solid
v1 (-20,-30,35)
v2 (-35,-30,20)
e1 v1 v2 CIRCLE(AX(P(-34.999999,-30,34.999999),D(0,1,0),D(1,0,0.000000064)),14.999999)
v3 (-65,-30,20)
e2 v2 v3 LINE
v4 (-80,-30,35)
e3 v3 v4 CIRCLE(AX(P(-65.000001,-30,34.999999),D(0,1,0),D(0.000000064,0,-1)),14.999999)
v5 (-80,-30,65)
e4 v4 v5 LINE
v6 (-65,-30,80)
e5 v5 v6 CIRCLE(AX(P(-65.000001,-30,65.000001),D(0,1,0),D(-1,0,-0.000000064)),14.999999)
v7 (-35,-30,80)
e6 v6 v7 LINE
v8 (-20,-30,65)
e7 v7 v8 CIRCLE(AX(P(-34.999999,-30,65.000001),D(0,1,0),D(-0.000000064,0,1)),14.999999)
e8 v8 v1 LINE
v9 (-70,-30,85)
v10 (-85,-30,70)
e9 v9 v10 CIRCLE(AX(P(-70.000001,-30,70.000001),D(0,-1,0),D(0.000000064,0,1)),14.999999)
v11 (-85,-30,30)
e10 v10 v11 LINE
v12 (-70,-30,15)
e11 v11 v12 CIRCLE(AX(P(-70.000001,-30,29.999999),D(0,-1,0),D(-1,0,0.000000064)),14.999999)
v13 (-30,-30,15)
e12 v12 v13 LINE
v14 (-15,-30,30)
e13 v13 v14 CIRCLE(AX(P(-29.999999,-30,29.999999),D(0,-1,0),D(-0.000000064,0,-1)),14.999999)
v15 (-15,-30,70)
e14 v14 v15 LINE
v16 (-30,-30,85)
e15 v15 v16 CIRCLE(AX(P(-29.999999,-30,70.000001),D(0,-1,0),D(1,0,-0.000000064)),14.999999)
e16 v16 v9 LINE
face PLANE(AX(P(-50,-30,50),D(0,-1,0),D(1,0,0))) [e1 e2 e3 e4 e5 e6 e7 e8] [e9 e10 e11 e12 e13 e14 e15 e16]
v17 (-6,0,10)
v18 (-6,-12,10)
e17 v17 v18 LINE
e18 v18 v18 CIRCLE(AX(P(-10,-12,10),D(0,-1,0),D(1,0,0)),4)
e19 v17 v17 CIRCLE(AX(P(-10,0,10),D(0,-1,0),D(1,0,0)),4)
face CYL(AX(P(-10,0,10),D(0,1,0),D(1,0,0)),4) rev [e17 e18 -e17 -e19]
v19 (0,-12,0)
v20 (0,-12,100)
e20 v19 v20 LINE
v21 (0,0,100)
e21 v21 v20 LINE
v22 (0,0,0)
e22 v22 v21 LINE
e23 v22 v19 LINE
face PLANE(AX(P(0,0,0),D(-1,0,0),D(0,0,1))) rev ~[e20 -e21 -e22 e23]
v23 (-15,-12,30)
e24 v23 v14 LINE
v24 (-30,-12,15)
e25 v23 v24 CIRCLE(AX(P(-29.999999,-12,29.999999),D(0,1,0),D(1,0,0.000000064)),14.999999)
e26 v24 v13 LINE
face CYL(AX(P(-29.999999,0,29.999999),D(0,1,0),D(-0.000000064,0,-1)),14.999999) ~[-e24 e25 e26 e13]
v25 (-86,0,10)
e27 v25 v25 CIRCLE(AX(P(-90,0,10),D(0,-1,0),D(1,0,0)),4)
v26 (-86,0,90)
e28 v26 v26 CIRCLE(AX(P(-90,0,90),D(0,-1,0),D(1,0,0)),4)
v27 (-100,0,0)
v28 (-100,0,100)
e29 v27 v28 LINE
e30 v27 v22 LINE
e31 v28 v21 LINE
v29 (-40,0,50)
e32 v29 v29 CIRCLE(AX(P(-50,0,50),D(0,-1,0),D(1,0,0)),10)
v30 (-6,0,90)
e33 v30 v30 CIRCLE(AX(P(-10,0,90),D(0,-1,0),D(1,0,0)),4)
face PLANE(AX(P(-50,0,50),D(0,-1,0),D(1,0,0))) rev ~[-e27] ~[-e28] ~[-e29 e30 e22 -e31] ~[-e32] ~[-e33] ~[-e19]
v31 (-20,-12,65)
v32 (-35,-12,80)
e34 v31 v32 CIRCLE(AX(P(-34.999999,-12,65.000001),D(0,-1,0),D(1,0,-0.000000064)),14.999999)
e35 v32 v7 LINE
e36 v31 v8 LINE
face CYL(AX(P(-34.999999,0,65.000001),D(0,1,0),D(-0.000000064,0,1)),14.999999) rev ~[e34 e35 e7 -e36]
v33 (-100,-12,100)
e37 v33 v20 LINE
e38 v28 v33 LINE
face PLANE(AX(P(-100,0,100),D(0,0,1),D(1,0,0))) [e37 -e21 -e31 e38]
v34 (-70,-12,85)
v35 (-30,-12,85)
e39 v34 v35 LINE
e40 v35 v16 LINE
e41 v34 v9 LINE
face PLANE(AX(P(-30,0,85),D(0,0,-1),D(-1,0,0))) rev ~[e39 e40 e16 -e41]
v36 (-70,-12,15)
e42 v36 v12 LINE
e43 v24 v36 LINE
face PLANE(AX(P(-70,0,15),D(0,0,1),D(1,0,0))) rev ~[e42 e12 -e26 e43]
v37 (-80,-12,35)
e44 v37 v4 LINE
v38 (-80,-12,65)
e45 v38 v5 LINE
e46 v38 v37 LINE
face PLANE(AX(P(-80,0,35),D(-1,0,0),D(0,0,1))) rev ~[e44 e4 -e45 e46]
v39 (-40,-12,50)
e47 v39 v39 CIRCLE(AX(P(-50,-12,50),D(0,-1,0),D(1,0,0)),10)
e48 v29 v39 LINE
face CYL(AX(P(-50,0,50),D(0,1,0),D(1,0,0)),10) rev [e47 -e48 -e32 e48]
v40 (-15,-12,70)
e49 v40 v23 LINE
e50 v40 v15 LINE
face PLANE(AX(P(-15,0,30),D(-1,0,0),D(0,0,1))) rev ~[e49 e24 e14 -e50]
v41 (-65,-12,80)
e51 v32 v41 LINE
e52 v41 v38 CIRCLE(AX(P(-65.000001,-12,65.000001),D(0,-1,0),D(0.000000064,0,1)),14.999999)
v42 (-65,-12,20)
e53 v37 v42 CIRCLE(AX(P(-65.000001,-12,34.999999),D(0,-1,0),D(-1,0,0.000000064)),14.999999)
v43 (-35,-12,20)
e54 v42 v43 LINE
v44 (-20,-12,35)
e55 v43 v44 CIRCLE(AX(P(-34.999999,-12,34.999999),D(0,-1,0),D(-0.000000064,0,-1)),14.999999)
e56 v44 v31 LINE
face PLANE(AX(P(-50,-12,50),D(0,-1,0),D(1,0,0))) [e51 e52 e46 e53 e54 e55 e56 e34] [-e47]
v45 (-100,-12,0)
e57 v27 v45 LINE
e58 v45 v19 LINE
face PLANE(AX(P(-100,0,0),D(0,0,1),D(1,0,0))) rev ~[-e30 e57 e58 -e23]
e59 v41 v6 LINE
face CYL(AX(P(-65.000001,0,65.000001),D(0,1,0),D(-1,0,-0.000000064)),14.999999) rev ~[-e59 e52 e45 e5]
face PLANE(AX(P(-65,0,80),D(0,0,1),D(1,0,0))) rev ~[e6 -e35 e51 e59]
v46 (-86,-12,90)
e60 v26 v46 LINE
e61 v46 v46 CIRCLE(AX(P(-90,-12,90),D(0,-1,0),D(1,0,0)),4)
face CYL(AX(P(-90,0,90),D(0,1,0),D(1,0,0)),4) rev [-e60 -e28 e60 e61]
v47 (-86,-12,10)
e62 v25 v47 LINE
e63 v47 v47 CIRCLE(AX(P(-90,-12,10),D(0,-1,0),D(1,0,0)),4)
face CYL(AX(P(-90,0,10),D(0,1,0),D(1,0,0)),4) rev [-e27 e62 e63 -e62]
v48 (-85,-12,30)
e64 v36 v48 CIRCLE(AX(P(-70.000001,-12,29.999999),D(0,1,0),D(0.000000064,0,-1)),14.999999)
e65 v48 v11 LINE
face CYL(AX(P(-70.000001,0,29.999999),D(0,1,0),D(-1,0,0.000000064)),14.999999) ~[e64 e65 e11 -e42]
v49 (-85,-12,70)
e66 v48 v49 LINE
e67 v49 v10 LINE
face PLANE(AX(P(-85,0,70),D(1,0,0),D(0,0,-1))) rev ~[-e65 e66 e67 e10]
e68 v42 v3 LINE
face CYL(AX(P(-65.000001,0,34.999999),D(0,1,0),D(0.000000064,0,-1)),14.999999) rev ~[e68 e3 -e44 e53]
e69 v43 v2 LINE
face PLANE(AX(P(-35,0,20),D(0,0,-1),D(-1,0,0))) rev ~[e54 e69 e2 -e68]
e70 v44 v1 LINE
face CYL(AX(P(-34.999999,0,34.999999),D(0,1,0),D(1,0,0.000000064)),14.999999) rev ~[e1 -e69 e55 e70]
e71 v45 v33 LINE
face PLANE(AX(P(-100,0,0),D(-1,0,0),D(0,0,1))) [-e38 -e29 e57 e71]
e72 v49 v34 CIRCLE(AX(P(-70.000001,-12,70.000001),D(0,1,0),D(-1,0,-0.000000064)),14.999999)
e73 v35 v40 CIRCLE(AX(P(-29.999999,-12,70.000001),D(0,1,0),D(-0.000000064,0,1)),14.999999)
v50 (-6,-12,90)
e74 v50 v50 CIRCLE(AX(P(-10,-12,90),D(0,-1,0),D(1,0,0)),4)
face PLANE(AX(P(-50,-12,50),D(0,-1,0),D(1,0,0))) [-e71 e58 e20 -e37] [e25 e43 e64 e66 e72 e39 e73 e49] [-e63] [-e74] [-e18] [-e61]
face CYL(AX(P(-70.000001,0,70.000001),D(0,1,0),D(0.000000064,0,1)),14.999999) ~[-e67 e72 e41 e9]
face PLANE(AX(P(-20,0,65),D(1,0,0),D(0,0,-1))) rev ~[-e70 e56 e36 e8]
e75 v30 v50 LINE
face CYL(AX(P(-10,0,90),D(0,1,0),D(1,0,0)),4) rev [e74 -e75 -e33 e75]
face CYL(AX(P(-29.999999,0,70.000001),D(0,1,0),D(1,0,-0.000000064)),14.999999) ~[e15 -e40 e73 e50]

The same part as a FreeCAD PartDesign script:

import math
import FreeCAD as App
import Part
import Sketcher

V = App.Vector
Q = App.Units.Quantity

doc = App.newDocument("Part")
body = doc.addObject("PartDesign::Body", "Body")

# Sketch on XZ plane
sketch1 = doc.addObject("Sketcher::SketchObject", "Sketch")
body.addObject(sketch1)
sketch1.AttachmentSupport = (doc.XZ_Plane, [""])
sketch1.MapMode = "FlatFace"
sketch1.addGeometry([
    Part.LineSegment(V(-30, 85, 0), V(-70, 85, 0)),  # 0
    Part.ArcOfCircle(Part.Circle(V(-70, 70, 0), V(0, 0, 1), 15), math.radians(90), math.radians(180)),  # 1
    Part.LineSegment(V(-85, 70, 0), V(-85, 30, 0)),  # 2
    Part.ArcOfCircle(Part.Circle(V(-70, 30, 0), V(0, 0, 1), 15), math.radians(180), math.radians(270)),  # 3
    Part.LineSegment(V(-70, 15, 0), V(-30, 15, 0)),  # 4
    Part.ArcOfCircle(Part.Circle(V(-30, 30, 0), V(0, 0, 1), 15), math.radians(-90), math.radians(0)),  # 5
    Part.LineSegment(V(-15, 30, 0), V(-15, 70, 0)),  # 6
    Part.ArcOfCircle(Part.Circle(V(-30, 70, 0), V(0, 0, 1), 15), math.radians(0), math.radians(90)),  # 7
    Part.LineSegment(V(-80, 35, 0), V(-80, 65, 0)),  # 8
    Part.ArcOfCircle(Part.Circle(V(-65, 65, 0), V(0, 0, 1), 15), math.radians(90), math.radians(180)),  # 9
    Part.LineSegment(V(-65, 80, 0), V(-35, 80, 0)),  # 10
    Part.ArcOfCircle(Part.Circle(V(-35, 65, 0), V(0, 0, 1), 15), math.radians(0), math.radians(90)),  # 11
    Part.LineSegment(V(-20, 65, 0), V(-20, 35, 0)),  # 12
    Part.ArcOfCircle(Part.Circle(V(-35, 35, 0), V(0, 0, 1), 15), math.radians(-90), math.radians(0)),  # 13
    Part.LineSegment(V(-35, 20, 0), V(-65, 20, 0)),  # 14
    Part.ArcOfCircle(Part.Circle(V(-65, 35, 0), V(0, 0, 1), 15), math.radians(180), math.radians(270)),  # 15
], False)
sketch1.addConstraint([
    Sketcher.Constraint("Tangent", 0, 2, 1, 1),
    Sketcher.Constraint("Tangent", 1, 2, 2, 1),
    Sketcher.Constraint("Tangent", 2, 2, 3, 1),
    Sketcher.Constraint("Tangent", 3, 2, 4, 1),
    Sketcher.Constraint("Tangent", 4, 2, 5, 1),
    Sketcher.Constraint("Tangent", 5, 2, 6, 1),
    Sketcher.Constraint("Tangent", 6, 2, 7, 1),
    Sketcher.Constraint("Tangent", 7, 2, 0, 1),
    Sketcher.Constraint("Tangent", 8, 2, 9, 2),
    Sketcher.Constraint("Tangent", 9, 1, 10, 1),
    Sketcher.Constraint("Tangent", 10, 2, 11, 2),
    Sketcher.Constraint("Tangent", 11, 1, 12, 1),
    Sketcher.Constraint("Tangent", 12, 2, 13, 2),
    Sketcher.Constraint("Tangent", 13, 1, 14, 1),
    Sketcher.Constraint("Tangent", 14, 2, 15, 2),
    Sketcher.Constraint("Tangent", 15, 1, 8, 1),
    Sketcher.Constraint("Horizontal", 0),
    Sketcher.Constraint("Vertical", 2),
    Sketcher.Constraint("Horizontal", 4),
    Sketcher.Constraint("Vertical", 6),
    Sketcher.Constraint("Vertical", 8),
    Sketcher.Constraint("Horizontal", 10),
    Sketcher.Constraint("Vertical", 12),
    Sketcher.Constraint("Horizontal", 14),
    Sketcher.Constraint("Equal", 1, 3),
    Sketcher.Constraint("Equal", 3, 5),
    Sketcher.Constraint("Equal", 5, 7),
    Sketcher.Constraint("Equal", 7, 9),
    Sketcher.Constraint("Equal", 9, 11),
    Sketcher.Constraint("Equal", 11, 13),
    Sketcher.Constraint("Equal", 13, 15),
    Sketcher.Constraint("Equal", 4, 2),
    Sketcher.Constraint("Equal", 14, 8),
    Sketcher.Constraint("Radius", 1, Q("14.999999 mm")),
    Sketcher.Constraint("DistanceX", 0, 2, 0, 1, Q("40 mm")),
    Sketcher.Constraint("DistanceX", 10, 1, 10, 2, Q("30 mm")),
    Sketcher.Constraint("DistanceX", 1, 3, -1, 1, Q("70.000001 mm")),
    Sketcher.Constraint("DistanceY", -1, 1, 1, 3, Q("70.000001 mm")),
    Sketcher.Constraint("DistanceX", 9, 3, -1, 1, Q("65.000001 mm")),
    Sketcher.Constraint("DistanceY", -1, 1, 9, 3, Q("65.000001 mm")),
])
pad1 = doc.addObject("PartDesign::Pad", "Pad")
body.addObject(pad1)
pad1.Profile = sketch1
pad1.Length = 30

# Sketch on XZ plane
sketch2 = doc.addObject("Sketcher::SketchObject", "Sketch001")
body.addObject(sketch2)
sketch2.AttachmentSupport = (doc.XZ_Plane, [""])
sketch2.MapMode = "FlatFace"
sketch2.addGeometry([
    Part.LineSegment(V(-100, 100, 0), V(-100, 0, 0)),  # 0
    Part.LineSegment(V(-100, 0, 0), V(0, 0, 0)),  # 1
    Part.LineSegment(V(0, 0, 0), V(0, 100, 0)),  # 2
    Part.LineSegment(V(0, 100, 0), V(-100, 100, 0)),  # 3
    Part.Circle(V(-90, 10, 0), V(0, 0, 1), 4),  # 4
    Part.Circle(V(-10, 10, 0), V(0, 0, 1), 4),  # 5
    Part.LineSegment(V(-85, 30, 0), V(-85, 70, 0)),  # 6
    Part.ArcOfCircle(Part.Circle(V(-70, 70, 0), V(0, 0, 1), 15), math.radians(90), math.radians(180)),  # 7
    Part.LineSegment(V(-70, 85, 0), V(-30, 85, 0)),  # 8
    Part.ArcOfCircle(Part.Circle(V(-30, 70, 0), V(0, 0, 1), 15), math.radians(0), math.radians(90)),  # 9
    Part.LineSegment(V(-15, 70, 0), V(-15, 30, 0)),  # 10
    Part.ArcOfCircle(Part.Circle(V(-30, 30, 0), V(0, 0, 1), 15), math.radians(-90), math.radians(0)),  # 11
    Part.LineSegment(V(-30, 15, 0), V(-70, 15, 0)),  # 12
    Part.ArcOfCircle(Part.Circle(V(-70, 30, 0), V(0, 0, 1), 15), math.radians(180), math.radians(270)),  # 13
    Part.Circle(V(-90, 90, 0), V(0, 0, 1), 4),  # 14
    Part.Circle(V(-10, 90, 0), V(0, 0, 1), 4),  # 15
    Part.LineSegment(V(-35, 80, 0), V(-65, 80, 0)),  # 16
    Part.ArcOfCircle(Part.Circle(V(-65, 65, 0), V(0, 0, 1), 15), math.radians(90), math.radians(180)),  # 17
    Part.LineSegment(V(-80, 65, 0), V(-80, 35, 0)),  # 18
    Part.ArcOfCircle(Part.Circle(V(-65, 35, 0), V(0, 0, 1), 15), math.radians(180), math.radians(270)),  # 19
    Part.LineSegment(V(-65, 20, 0), V(-35, 20, 0)),  # 20
    Part.ArcOfCircle(Part.Circle(V(-35, 35, 0), V(0, 0, 1), 15), math.radians(-90), math.radians(0)),  # 21
    Part.LineSegment(V(-20, 35, 0), V(-20, 65, 0)),  # 22
    Part.ArcOfCircle(Part.Circle(V(-35, 65, 0), V(0, 0, 1), 15), math.radians(0), math.radians(90)),  # 23
    Part.Circle(V(-50, 50, 0), V(0, 0, 1), 10),  # 24
], False)
sketch2.addConstraint([
    Sketcher.Constraint("Coincident", 0, 2, 1, 1),
    Sketcher.Constraint("Coincident", 1, 2, 2, 1),
    Sketcher.Constraint("Coincident", 2, 2, 3, 1),
    Sketcher.Constraint("Coincident", 3, 2, 0, 1),
    Sketcher.Constraint("Tangent", 6, 2, 7, 2),
    Sketcher.Constraint("Tangent", 7, 1, 8, 1),
    Sketcher.Constraint("Tangent", 8, 2, 9, 2),
    Sketcher.Constraint("Tangent", 9, 1, 10, 1),
    Sketcher.Constraint("Tangent", 10, 2, 11, 2),
    Sketcher.Constraint("Tangent", 11, 1, 12, 1),
    Sketcher.Constraint("Tangent", 12, 2, 13, 2),
    Sketcher.Constraint("Tangent", 13, 1, 6, 1),
    Sketcher.Constraint("Tangent", 16, 2, 17, 1),
    Sketcher.Constraint("Tangent", 17, 2, 18, 1),
    Sketcher.Constraint("Tangent", 18, 2, 19, 1),
    Sketcher.Constraint("Tangent", 19, 2, 20, 1),
    Sketcher.Constraint("Tangent", 20, 2, 21, 1),
    Sketcher.Constraint("Tangent", 21, 2, 22, 1),
    Sketcher.Constraint("Tangent", 22, 2, 23, 1),
    Sketcher.Constraint("Tangent", 23, 2, 16, 1),
    Sketcher.Constraint("Vertical", 0),
    Sketcher.Constraint("Horizontal", 1),
    Sketcher.Constraint("Vertical", 2),
    Sketcher.Constraint("Horizontal", 3),
    Sketcher.Constraint("Vertical", 6),
    Sketcher.Constraint("Horizontal", 8),
    Sketcher.Constraint("Vertical", 10),
    Sketcher.Constraint("Horizontal", 12),
    Sketcher.Constraint("Horizontal", 16),
    Sketcher.Constraint("Vertical", 18),
    Sketcher.Constraint("Horizontal", 20),
    Sketcher.Constraint("Vertical", 22),
    Sketcher.Constraint("Coincident", 1, 2, -1, 1),
    Sketcher.Constraint("Equal", 4, 5),
    Sketcher.Constraint("Equal", 7, 9),
    Sketcher.Constraint("Equal", 9, 11),
    Sketcher.Constraint("Equal", 11, 13),
    Sketcher.Constraint("Equal", 5, 14),
    Sketcher.Constraint("Equal", 14, 15),
    Sketcher.Constraint("Equal", 13, 17),
    Sketcher.Constraint("Equal", 17, 19),
    Sketcher.Constraint("Equal", 19, 21),
    Sketcher.Constraint("Equal", 21, 23),
    Sketcher.Constraint("Horizontal", 4, 3, 5, 3),
    Sketcher.Constraint("Horizontal", 14, 3, 15, 3),
    Sketcher.Constraint("Vertical", 4, 3, 14, 3),
    Sketcher.Constraint("Vertical", 5, 3, 15, 3),
    Sketcher.Constraint("Equal", 3, 0),
    Sketcher.Constraint("Equal", 12, 6),
    Sketcher.Constraint("Equal", 20, 18),
    Sketcher.Constraint("Diameter", 4, Q("8 mm")),
    Sketcher.Constraint("Diameter", 24, Q("20 mm")),
    Sketcher.Constraint("Radius", 7, Q("14.999999 mm")),
    Sketcher.Constraint("DistanceX", 1, 1, 1, 2, Q("100 mm")),
    Sketcher.Constraint("DistanceX", 8, 1, 8, 2, Q("40 mm")),
    Sketcher.Constraint("DistanceX", 16, 2, 16, 1, Q("30 mm")),
    Sketcher.Constraint("DistanceX", 4, 3, -1, 1, Q("90 mm")),
    Sketcher.Constraint("DistanceY", -1, 1, 4, 3, Q("10 mm")),
    Sketcher.Constraint("DistanceX", 5, 3, -1, 1, Q("10 mm")),
    Sketcher.Constraint("DistanceX", 7, 3, -1, 1, Q("70.000001 mm")),
    Sketcher.Constraint("DistanceY", -1, 1, 7, 3, Q("70.000001 mm")),
    Sketcher.Constraint("DistanceY", -1, 1, 14, 3, Q("90 mm")),
    Sketcher.Constraint("DistanceX", 17, 3, -1, 1, Q("65.000001 mm")),
    Sketcher.Constraint("DistanceY", -1, 1, 17, 3, Q("65.000001 mm")),
    Sketcher.Constraint("DistanceX", 24, 3, -1, 1, Q("50 mm")),
    Sketcher.Constraint("DistanceY", -1, 1, 24, 3, Q("50 mm")),
])
pad2 = doc.addObject("PartDesign::Pad", "Pad001")
body.addObject(pad2)
pad2.Profile = sketch2
pad2.Length = 12

doc.recompute()
